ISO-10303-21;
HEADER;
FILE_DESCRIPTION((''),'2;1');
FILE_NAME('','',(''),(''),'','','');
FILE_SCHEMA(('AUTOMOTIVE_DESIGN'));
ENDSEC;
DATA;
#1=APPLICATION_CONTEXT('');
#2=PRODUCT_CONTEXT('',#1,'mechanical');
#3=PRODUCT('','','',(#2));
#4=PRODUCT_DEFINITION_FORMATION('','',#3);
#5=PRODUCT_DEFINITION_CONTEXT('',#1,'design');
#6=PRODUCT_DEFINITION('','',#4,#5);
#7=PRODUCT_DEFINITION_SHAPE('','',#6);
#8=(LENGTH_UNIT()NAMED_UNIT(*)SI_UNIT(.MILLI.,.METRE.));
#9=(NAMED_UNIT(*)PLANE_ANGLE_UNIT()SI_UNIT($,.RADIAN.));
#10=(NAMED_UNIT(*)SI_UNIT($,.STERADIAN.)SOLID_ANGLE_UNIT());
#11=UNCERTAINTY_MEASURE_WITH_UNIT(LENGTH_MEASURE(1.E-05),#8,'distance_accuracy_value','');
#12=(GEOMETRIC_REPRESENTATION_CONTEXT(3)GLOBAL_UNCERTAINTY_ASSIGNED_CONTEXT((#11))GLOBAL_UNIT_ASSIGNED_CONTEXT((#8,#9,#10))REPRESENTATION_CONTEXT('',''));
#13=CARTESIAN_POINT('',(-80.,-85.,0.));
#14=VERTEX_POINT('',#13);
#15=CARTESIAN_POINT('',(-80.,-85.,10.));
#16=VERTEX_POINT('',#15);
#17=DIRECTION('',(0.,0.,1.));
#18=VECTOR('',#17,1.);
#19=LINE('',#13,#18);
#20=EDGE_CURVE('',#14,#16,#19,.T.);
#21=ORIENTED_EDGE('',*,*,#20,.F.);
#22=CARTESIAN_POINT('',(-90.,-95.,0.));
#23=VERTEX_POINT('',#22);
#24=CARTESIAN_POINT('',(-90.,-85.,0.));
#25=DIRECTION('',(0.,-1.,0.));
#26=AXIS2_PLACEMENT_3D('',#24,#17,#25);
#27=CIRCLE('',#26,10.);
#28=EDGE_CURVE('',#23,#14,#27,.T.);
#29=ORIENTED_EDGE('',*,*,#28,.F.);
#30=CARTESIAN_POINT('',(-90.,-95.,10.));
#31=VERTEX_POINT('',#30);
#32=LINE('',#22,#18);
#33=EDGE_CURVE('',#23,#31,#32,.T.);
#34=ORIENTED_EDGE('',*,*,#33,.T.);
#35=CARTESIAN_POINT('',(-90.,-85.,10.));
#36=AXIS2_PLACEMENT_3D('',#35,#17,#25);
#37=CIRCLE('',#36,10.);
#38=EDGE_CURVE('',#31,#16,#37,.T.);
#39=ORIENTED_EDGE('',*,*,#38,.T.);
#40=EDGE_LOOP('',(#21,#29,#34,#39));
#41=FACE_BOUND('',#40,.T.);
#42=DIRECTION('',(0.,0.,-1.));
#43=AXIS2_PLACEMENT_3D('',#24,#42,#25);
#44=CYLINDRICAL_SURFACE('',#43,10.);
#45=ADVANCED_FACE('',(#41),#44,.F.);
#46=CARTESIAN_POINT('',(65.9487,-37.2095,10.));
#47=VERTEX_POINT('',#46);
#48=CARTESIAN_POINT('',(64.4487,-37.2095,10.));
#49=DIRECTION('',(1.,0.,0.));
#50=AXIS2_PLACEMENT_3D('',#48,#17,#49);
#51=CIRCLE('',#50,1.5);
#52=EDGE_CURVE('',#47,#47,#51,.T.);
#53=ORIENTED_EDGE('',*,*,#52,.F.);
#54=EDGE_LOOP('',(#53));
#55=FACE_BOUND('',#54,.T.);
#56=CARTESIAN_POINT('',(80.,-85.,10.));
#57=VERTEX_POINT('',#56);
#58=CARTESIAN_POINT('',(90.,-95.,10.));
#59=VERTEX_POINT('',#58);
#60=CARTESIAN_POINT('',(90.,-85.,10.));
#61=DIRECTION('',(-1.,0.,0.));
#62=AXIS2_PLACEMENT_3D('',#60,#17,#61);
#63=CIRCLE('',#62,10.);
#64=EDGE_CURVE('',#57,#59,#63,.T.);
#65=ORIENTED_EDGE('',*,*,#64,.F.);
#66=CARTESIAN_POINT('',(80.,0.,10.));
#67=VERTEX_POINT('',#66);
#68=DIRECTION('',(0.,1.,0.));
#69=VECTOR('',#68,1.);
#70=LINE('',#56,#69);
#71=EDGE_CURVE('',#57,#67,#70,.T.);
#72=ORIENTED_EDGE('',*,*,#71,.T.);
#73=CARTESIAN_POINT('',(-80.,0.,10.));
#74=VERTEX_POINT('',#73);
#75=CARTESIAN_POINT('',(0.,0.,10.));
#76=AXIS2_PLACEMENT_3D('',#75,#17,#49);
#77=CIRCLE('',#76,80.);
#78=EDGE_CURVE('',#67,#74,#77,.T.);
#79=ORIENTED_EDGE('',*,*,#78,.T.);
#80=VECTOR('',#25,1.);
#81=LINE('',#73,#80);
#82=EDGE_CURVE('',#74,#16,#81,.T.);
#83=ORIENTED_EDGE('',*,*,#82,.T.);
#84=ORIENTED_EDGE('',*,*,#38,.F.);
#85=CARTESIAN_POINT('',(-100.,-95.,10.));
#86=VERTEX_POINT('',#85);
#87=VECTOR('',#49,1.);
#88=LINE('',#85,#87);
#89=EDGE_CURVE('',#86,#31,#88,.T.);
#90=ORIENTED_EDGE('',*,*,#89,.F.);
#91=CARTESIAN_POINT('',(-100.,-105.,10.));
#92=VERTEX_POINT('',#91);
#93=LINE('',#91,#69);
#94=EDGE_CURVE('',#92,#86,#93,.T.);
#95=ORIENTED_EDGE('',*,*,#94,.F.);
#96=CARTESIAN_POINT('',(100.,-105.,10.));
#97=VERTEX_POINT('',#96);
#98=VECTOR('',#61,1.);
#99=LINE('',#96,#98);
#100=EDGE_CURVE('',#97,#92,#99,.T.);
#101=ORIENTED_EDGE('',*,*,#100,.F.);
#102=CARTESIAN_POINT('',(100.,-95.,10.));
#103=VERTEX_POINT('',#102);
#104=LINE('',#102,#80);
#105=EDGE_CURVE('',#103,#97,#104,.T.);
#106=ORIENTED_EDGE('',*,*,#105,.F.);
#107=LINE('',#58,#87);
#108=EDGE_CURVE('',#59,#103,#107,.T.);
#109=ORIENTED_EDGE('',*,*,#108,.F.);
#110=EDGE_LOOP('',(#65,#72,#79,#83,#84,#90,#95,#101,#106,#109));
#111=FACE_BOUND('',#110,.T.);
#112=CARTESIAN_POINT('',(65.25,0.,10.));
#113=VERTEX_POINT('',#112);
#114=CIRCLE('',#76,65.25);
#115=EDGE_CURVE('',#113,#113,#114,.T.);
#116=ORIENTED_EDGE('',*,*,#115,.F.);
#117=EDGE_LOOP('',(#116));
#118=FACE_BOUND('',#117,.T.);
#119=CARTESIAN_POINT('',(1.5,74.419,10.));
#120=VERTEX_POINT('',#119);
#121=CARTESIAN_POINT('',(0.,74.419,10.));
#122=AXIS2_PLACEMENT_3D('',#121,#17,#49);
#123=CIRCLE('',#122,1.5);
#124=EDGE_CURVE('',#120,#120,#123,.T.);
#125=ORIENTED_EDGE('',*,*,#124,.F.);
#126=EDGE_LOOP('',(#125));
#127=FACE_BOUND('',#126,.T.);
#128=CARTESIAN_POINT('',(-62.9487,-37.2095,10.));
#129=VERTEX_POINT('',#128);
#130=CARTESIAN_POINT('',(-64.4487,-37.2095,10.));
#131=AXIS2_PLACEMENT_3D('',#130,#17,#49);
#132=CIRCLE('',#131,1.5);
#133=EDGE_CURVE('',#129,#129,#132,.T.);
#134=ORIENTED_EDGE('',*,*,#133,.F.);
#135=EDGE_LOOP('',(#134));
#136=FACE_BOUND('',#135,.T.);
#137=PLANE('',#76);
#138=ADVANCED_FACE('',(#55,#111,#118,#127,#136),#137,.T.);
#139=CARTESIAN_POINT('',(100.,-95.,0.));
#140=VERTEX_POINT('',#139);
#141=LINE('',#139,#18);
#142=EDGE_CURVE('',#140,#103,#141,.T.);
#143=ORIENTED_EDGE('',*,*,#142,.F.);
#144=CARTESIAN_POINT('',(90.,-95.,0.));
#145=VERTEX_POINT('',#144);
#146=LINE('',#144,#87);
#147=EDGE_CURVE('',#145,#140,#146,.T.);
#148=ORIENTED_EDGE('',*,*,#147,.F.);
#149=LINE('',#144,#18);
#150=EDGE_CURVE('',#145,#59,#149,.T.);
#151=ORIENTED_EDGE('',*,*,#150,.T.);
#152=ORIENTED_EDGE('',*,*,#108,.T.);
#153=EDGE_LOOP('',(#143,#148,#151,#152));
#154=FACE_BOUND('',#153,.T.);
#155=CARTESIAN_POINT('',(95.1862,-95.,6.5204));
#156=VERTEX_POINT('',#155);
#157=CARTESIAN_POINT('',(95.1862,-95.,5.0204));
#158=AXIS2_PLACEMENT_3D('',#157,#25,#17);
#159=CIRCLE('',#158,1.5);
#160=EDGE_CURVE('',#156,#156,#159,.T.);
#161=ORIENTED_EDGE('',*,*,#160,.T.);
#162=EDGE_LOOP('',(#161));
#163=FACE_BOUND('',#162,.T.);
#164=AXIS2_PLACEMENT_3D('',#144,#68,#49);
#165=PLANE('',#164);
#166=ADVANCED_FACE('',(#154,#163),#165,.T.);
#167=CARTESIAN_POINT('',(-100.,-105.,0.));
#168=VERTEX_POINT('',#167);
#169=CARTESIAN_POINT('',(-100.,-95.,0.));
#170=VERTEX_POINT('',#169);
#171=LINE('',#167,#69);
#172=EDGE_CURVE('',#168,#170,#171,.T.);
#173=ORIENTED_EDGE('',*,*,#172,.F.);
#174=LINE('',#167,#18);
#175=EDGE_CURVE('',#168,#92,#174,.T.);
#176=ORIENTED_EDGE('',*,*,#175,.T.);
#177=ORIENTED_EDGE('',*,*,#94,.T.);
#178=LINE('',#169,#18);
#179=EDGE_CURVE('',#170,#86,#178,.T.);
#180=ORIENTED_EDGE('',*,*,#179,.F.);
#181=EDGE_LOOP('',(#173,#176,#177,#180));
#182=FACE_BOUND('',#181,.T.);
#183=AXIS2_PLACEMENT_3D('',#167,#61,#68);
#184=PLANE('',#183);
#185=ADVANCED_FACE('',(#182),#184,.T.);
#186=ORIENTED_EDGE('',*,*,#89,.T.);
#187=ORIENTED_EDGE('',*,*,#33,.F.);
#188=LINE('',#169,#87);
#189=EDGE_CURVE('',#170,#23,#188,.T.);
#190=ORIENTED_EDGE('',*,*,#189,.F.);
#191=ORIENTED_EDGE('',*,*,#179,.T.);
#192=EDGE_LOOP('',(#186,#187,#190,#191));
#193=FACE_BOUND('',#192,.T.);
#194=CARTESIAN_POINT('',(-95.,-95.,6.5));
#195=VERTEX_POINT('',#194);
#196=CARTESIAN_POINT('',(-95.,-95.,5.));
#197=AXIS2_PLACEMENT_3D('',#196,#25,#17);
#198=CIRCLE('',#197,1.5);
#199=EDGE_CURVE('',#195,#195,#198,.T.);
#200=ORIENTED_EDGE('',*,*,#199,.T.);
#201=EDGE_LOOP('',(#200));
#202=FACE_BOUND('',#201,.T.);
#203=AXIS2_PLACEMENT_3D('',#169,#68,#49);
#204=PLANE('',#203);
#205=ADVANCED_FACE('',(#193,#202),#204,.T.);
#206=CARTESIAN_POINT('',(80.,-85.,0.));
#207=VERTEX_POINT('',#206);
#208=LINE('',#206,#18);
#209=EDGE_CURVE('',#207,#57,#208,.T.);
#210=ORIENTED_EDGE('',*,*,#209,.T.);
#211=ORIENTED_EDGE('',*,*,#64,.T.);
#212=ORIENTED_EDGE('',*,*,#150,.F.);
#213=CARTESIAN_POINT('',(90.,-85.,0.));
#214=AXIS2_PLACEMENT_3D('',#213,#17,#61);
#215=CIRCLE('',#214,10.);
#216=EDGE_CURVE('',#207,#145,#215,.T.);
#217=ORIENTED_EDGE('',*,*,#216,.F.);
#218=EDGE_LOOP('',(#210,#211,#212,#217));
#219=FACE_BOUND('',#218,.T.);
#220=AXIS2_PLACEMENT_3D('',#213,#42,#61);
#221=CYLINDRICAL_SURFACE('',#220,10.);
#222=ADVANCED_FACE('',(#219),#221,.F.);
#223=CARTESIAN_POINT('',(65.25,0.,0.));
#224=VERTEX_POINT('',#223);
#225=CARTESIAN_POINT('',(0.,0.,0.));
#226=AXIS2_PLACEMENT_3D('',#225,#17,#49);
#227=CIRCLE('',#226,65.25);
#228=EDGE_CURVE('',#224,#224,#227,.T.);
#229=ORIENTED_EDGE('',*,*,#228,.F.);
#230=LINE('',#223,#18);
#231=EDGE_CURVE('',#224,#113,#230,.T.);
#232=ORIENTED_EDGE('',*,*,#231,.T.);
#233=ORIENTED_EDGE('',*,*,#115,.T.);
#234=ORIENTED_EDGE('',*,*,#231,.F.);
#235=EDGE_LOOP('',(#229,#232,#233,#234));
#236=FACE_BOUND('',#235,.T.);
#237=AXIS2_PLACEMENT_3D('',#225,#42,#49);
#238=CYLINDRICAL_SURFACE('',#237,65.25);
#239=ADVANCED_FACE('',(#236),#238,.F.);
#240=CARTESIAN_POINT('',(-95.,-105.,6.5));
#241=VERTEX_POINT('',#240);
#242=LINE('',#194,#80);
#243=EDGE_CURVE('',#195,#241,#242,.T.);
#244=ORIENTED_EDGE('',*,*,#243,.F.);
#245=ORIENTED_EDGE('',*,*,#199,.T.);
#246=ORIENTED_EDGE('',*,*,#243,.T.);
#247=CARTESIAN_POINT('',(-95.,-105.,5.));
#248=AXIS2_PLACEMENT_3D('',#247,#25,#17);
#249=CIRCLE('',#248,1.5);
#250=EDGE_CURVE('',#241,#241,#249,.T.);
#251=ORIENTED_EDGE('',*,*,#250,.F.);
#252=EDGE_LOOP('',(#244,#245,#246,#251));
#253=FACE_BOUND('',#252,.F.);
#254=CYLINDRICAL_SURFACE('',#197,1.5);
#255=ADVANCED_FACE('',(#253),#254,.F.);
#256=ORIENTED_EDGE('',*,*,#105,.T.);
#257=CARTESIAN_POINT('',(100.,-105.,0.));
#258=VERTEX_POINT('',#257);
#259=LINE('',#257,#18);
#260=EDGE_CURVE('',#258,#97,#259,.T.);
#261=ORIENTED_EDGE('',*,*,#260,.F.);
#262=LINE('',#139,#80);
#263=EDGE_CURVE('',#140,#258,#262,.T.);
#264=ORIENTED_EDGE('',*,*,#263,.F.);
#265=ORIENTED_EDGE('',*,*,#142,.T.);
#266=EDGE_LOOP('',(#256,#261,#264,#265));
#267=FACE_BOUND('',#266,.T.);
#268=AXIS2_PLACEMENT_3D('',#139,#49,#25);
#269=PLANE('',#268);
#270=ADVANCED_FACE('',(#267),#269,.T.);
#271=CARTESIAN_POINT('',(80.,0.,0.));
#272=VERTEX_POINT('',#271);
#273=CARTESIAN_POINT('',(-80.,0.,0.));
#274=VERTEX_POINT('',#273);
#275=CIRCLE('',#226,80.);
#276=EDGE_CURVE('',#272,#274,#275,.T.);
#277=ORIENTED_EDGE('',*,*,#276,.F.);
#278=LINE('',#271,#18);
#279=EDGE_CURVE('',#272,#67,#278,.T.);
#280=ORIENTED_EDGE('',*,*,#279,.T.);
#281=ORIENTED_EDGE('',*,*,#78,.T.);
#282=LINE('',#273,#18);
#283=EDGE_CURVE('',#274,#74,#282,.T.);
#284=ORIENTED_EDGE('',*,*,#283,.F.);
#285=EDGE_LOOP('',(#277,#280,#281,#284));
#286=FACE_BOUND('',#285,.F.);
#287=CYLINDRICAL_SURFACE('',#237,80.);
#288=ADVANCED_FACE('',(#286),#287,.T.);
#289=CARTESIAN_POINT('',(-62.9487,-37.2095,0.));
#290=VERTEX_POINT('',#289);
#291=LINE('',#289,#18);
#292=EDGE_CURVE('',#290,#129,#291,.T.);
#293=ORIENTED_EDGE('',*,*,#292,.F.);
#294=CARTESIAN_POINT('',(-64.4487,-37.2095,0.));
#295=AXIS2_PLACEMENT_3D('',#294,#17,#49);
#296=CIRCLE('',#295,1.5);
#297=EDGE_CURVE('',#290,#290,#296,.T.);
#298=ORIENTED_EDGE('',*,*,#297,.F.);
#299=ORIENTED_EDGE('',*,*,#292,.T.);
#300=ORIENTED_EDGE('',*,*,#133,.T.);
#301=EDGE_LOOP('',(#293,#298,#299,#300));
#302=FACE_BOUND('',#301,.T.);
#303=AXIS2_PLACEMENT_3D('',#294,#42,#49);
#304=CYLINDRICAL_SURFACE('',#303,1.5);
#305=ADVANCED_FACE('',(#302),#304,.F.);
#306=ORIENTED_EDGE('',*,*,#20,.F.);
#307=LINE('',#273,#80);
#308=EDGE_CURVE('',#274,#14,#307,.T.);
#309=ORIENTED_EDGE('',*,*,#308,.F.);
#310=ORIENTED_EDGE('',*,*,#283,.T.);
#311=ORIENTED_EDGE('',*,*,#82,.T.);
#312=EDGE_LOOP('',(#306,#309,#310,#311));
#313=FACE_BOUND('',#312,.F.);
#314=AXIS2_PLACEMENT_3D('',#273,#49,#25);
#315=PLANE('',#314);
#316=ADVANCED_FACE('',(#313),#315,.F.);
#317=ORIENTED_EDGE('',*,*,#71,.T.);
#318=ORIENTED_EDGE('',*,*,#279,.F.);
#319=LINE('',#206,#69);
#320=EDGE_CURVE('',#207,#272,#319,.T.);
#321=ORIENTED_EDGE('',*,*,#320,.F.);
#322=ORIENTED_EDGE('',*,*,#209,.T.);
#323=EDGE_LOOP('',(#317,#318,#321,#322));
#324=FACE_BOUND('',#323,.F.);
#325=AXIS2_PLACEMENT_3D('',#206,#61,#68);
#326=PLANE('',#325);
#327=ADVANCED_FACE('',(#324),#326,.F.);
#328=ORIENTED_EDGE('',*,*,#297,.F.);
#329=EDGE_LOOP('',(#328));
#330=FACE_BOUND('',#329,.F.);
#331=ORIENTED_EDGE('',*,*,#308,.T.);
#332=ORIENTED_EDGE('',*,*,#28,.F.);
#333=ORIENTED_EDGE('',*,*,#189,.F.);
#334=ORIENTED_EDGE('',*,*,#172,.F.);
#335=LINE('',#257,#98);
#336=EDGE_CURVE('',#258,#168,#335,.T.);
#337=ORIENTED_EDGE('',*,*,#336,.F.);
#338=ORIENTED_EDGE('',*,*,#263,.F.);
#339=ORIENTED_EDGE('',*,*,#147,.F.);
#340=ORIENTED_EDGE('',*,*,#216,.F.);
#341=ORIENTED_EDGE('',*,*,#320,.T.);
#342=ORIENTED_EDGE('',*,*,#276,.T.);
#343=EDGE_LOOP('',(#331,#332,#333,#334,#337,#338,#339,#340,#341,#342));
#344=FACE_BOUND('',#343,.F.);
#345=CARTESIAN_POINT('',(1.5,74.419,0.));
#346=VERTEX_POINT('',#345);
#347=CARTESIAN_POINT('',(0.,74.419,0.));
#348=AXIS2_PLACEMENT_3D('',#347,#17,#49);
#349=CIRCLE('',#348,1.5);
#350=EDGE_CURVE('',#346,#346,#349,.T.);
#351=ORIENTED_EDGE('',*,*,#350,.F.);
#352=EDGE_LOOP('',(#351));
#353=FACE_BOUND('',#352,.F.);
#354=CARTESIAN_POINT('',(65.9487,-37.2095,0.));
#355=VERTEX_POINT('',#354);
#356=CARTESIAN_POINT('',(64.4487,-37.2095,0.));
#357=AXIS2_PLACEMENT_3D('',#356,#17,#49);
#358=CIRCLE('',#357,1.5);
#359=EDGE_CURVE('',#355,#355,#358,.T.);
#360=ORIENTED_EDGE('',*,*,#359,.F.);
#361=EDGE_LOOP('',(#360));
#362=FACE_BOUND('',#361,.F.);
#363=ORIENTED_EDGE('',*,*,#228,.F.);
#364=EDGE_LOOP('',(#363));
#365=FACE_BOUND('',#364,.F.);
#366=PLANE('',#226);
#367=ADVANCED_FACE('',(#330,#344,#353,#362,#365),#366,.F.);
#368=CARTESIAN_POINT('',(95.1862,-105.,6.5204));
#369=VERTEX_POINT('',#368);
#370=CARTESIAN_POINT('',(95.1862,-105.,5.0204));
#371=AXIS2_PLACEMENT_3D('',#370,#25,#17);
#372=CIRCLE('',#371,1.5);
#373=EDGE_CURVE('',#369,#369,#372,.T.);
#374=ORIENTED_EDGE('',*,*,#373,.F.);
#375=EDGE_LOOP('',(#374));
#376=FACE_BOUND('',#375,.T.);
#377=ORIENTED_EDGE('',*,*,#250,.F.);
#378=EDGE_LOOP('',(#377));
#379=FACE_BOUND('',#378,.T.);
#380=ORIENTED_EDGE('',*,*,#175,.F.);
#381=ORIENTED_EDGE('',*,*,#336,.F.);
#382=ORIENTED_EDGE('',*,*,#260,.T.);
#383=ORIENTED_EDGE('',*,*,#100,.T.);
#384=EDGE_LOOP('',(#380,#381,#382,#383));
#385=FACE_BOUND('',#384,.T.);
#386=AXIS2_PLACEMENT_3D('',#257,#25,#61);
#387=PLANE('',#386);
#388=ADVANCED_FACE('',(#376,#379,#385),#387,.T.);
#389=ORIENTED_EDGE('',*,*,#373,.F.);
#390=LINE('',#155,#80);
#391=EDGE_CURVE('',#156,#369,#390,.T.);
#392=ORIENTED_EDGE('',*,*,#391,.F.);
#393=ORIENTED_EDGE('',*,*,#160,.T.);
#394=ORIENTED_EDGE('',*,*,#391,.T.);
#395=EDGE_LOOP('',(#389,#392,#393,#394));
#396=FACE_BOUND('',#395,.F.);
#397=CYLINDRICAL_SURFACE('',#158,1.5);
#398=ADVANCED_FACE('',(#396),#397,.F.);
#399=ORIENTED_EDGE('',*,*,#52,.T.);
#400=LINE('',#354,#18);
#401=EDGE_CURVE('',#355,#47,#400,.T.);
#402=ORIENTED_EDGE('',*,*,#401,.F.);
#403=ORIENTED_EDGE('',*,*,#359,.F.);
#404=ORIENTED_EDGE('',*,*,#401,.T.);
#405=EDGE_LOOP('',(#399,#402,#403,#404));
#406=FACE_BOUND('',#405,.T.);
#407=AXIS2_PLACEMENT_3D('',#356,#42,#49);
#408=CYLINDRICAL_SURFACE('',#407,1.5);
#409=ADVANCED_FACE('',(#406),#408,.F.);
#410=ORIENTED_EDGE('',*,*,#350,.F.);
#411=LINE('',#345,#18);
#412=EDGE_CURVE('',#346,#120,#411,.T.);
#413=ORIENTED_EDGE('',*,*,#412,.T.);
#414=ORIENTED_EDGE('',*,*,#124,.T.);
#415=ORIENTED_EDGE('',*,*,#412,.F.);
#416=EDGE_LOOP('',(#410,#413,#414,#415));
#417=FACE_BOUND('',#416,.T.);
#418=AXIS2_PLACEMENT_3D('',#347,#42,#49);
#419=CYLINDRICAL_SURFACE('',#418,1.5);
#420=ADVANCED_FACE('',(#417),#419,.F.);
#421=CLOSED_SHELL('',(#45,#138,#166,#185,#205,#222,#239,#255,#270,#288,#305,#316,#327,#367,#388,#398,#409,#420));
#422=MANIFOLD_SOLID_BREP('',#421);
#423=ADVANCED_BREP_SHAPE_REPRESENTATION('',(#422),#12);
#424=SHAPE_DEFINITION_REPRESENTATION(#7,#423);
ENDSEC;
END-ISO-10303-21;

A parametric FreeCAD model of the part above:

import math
import FreeCAD as App
import Part
import Sketcher

V = App.Vector
Q = App.Units.Quantity

doc = App.newDocument("Part")
body = doc.addObject("PartDesign::Body", "Body")

# Sketch on XY plane
sketch1 = body.newObject("Sketcher::SketchObject", "Sketch")
sketch1.AttachmentSupport = (doc.getObject("XY_Plane"), [""])
sketch1.MapMode = "FlatFace"
sketch1.addGeometry([
    Part.ArcOfCircle(Part.Circle(V(0, 0, 0), V(0, 0, 1), 80), math.radians(0), math.radians(180)),  # 0
    Part.LineSegment(V(-80, 0, 0), V(-80, -85, 0)),  # 1
    Part.ArcOfCircle(Part.Circle(V(-90, -85, 0), V(0, 0, 1), 10), math.radians(-90), math.radians(0)),  # 2
    Part.LineSegment(V(-90, -95, 0), V(-100, -95, 0)),  # 3
    Part.LineSegment(V(-100, -95, 0), V(-100, -105, 0)),  # 4
    Part.LineSegment(V(-100, -105, 0), V(100, -105, 0)),  # 5
    Part.LineSegment(V(100, -105, 0), V(100, -95, 0)),  # 6
    Part.LineSegment(V(100, -95, 0), V(90, -95, 0)),  # 7
    Part.ArcOfCircle(Part.Circle(V(90, -85, 0), V(0, 0, 1), 10), math.radians(180), math.radians(270)),  # 8
    Part.LineSegment(V(80, -85, 0), V(80, 0, 0)),  # 9
    Part.Circle(V(-64.4487, -37.2095, 0), V(0, 0, 1), 1.5),  # 10
    Part.Circle(V(64.4487, -37.2095, 0), V(0, 0, 1), 1.5),  # 11
    Part.Circle(V(0, 0, 0), V(0, 0, 1), 65.25),  # 12
    Part.Circle(V(0, 74.419, 0), V(0, 0, 1), 1.5),  # 13
], False)
sketch1.addConstraint([
    Sketcher.Constraint("Tangent", 0, 2, 1, 1),
    Sketcher.Constraint("Tangent", 1, 2, 2, 2),
    Sketcher.Constraint("Tangent", 2, 1, 3, 1),
    Sketcher.Constraint("Coincident", 3, 2, 4, 1),
    Sketcher.Constraint("Coincident", 4, 2, 5, 1),
    Sketcher.Constraint("Coincident", 5, 2, 6, 1),
    Sketcher.Constraint("Coincident", 6, 2, 7, 1),
    Sketcher.Constraint("Tangent", 7, 2, 8, 2),
    Sketcher.Constraint("Tangent", 8, 1, 9, 1),
    Sketcher.Constraint("Tangent", 9, 2, 0, 1),
    Sketcher.Constraint("Vertical", 1),
    Sketcher.Constraint("Horizontal", 3),
    Sketcher.Constraint("Vertical", 4),
    Sketcher.Constraint("Horizontal", 5),
    Sketcher.Constraint("Vertical", 6),
    Sketcher.Constraint("Horizontal", 7),
    Sketcher.Constraint("Vertical", 9),
    Sketcher.Constraint("Coincident", 0, 3, -1, 1),
    Sketcher.Constraint("Coincident", 12, 3, -1, 1),
    Sketcher.Constraint("Equal", 2, 8),
    Sketcher.Constraint("Equal", 10, 11),
    Sketcher.Constraint("Equal", 11, 13),
    Sketcher.Constraint("Symmetric", 10, 3, 11, 3, -2),
    Sketcher.Constraint("Symmetric", 3, 2, 6, 2, -2),
    Sketcher.Constraint("PointOnObject", 13, 3, -2),
    Sketcher.Constraint("Equal", 7, 4),
    Sketcher.Constraint("Diameter", 10, Q("3 mm")),
    Sketcher.Constraint("Radius", 0, Q("80 mm")),
    Sketcher.Constraint("Radius", 2, Q("10 mm")),
    Sketcher.Constraint("Diameter", 12, Q("130.5 mm")),
    Sketcher.Constraint("DistanceX", 3, 2, 3, 1, Q("10 mm")),
    Sketcher.Constraint("DistanceY", 4, 2, -1, 1, Q("105 mm")),
    Sketcher.Constraint("DistanceY", -1, 1, 13, 3, Q("74.419 mm")),
    Sketcher.Constraint("DistanceX", 10, 3, -1, 1, Q("64.4487 mm")),
    Sketcher.Constraint("DistanceY", 10, 3, -1, 1, Q("37.2095 mm")),
])
pad1 = body.newObject("PartDesign::Pad", "Pad")
pad1.Profile = sketch1
pad1.Length = 10

# Sketch on XZ plane
sketch2 = body.newObject("Sketcher::SketchObject", "Sketch001")
sketch2.AttachmentSupport = (doc.getObject("XZ_Plane"), [""])
sketch2.MapMode = "FlatFace"
sketch2.AttachmentOffset = App.Placement(V(0, 0, 95), App.Rotation())
sketch2.addGeometry(Part.Circle(V(-95, 5, 0), V(0, 0, 1), 1.5), False)
sketch2.addConstraint([
    Sketcher.Constraint("Diameter", 0, Q("3 mm")),
    Sketcher.Constraint("DistanceX", 0, 3, -1, 1, Q("95 mm")),
    Sketcher.Constraint("DistanceY", -1, 1, 0, 3, Q("5 mm")),
])
doc.recompute()
hole = body.newObject("PartDesign::Hole", "Hole")
hole.Profile = sketch2
hole.ThreadType = "None"
hole.Diameter = 3
hole.DepthType = "Dimension"
hole.Depth = 10
hole.DrillPoint = "Angled"
hole.DrillPointAngle = 118
hole.Reversed = True

# Sketch on XZ plane
sketch3 = body.newObject("Sketcher::SketchObject", "Sketch002")
sketch3.AttachmentSupport = (doc.getObject("XZ_Plane"), [""])
sketch3.MapMode = "FlatFace"
sketch3.AttachmentOffset = App.Placement(V(0, 0, 95), App.Rotation())
sketch3.addGeometry(Part.Circle(V(95.1862, 5.0204, 0), V(0, 0, 1), 1.5), False)
sketch3.addConstraint([
    Sketcher.Constraint("Diameter", 0, Q("3 mm")),
    Sketcher.Constraint("DistanceX", -1, 1, 0, 3, Q("95.1862 mm")),
    Sketcher.Constraint("DistanceY", -1, 1, 0, 3, Q("5.0204 mm")),
])
doc.recompute()
hole2 = body.newObject("PartDesign::Hole", "Hole001")
hole2.Profile = sketch3
hole2.ThreadType = "None"
hole2.Diameter = 3
hole2.DepthType = "Dimension"
hole2.Depth = 10
hole2.DrillPoint = "Angled"
hole2.DrillPointAngle = 118
hole2.Reversed = True

doc.recompute()
